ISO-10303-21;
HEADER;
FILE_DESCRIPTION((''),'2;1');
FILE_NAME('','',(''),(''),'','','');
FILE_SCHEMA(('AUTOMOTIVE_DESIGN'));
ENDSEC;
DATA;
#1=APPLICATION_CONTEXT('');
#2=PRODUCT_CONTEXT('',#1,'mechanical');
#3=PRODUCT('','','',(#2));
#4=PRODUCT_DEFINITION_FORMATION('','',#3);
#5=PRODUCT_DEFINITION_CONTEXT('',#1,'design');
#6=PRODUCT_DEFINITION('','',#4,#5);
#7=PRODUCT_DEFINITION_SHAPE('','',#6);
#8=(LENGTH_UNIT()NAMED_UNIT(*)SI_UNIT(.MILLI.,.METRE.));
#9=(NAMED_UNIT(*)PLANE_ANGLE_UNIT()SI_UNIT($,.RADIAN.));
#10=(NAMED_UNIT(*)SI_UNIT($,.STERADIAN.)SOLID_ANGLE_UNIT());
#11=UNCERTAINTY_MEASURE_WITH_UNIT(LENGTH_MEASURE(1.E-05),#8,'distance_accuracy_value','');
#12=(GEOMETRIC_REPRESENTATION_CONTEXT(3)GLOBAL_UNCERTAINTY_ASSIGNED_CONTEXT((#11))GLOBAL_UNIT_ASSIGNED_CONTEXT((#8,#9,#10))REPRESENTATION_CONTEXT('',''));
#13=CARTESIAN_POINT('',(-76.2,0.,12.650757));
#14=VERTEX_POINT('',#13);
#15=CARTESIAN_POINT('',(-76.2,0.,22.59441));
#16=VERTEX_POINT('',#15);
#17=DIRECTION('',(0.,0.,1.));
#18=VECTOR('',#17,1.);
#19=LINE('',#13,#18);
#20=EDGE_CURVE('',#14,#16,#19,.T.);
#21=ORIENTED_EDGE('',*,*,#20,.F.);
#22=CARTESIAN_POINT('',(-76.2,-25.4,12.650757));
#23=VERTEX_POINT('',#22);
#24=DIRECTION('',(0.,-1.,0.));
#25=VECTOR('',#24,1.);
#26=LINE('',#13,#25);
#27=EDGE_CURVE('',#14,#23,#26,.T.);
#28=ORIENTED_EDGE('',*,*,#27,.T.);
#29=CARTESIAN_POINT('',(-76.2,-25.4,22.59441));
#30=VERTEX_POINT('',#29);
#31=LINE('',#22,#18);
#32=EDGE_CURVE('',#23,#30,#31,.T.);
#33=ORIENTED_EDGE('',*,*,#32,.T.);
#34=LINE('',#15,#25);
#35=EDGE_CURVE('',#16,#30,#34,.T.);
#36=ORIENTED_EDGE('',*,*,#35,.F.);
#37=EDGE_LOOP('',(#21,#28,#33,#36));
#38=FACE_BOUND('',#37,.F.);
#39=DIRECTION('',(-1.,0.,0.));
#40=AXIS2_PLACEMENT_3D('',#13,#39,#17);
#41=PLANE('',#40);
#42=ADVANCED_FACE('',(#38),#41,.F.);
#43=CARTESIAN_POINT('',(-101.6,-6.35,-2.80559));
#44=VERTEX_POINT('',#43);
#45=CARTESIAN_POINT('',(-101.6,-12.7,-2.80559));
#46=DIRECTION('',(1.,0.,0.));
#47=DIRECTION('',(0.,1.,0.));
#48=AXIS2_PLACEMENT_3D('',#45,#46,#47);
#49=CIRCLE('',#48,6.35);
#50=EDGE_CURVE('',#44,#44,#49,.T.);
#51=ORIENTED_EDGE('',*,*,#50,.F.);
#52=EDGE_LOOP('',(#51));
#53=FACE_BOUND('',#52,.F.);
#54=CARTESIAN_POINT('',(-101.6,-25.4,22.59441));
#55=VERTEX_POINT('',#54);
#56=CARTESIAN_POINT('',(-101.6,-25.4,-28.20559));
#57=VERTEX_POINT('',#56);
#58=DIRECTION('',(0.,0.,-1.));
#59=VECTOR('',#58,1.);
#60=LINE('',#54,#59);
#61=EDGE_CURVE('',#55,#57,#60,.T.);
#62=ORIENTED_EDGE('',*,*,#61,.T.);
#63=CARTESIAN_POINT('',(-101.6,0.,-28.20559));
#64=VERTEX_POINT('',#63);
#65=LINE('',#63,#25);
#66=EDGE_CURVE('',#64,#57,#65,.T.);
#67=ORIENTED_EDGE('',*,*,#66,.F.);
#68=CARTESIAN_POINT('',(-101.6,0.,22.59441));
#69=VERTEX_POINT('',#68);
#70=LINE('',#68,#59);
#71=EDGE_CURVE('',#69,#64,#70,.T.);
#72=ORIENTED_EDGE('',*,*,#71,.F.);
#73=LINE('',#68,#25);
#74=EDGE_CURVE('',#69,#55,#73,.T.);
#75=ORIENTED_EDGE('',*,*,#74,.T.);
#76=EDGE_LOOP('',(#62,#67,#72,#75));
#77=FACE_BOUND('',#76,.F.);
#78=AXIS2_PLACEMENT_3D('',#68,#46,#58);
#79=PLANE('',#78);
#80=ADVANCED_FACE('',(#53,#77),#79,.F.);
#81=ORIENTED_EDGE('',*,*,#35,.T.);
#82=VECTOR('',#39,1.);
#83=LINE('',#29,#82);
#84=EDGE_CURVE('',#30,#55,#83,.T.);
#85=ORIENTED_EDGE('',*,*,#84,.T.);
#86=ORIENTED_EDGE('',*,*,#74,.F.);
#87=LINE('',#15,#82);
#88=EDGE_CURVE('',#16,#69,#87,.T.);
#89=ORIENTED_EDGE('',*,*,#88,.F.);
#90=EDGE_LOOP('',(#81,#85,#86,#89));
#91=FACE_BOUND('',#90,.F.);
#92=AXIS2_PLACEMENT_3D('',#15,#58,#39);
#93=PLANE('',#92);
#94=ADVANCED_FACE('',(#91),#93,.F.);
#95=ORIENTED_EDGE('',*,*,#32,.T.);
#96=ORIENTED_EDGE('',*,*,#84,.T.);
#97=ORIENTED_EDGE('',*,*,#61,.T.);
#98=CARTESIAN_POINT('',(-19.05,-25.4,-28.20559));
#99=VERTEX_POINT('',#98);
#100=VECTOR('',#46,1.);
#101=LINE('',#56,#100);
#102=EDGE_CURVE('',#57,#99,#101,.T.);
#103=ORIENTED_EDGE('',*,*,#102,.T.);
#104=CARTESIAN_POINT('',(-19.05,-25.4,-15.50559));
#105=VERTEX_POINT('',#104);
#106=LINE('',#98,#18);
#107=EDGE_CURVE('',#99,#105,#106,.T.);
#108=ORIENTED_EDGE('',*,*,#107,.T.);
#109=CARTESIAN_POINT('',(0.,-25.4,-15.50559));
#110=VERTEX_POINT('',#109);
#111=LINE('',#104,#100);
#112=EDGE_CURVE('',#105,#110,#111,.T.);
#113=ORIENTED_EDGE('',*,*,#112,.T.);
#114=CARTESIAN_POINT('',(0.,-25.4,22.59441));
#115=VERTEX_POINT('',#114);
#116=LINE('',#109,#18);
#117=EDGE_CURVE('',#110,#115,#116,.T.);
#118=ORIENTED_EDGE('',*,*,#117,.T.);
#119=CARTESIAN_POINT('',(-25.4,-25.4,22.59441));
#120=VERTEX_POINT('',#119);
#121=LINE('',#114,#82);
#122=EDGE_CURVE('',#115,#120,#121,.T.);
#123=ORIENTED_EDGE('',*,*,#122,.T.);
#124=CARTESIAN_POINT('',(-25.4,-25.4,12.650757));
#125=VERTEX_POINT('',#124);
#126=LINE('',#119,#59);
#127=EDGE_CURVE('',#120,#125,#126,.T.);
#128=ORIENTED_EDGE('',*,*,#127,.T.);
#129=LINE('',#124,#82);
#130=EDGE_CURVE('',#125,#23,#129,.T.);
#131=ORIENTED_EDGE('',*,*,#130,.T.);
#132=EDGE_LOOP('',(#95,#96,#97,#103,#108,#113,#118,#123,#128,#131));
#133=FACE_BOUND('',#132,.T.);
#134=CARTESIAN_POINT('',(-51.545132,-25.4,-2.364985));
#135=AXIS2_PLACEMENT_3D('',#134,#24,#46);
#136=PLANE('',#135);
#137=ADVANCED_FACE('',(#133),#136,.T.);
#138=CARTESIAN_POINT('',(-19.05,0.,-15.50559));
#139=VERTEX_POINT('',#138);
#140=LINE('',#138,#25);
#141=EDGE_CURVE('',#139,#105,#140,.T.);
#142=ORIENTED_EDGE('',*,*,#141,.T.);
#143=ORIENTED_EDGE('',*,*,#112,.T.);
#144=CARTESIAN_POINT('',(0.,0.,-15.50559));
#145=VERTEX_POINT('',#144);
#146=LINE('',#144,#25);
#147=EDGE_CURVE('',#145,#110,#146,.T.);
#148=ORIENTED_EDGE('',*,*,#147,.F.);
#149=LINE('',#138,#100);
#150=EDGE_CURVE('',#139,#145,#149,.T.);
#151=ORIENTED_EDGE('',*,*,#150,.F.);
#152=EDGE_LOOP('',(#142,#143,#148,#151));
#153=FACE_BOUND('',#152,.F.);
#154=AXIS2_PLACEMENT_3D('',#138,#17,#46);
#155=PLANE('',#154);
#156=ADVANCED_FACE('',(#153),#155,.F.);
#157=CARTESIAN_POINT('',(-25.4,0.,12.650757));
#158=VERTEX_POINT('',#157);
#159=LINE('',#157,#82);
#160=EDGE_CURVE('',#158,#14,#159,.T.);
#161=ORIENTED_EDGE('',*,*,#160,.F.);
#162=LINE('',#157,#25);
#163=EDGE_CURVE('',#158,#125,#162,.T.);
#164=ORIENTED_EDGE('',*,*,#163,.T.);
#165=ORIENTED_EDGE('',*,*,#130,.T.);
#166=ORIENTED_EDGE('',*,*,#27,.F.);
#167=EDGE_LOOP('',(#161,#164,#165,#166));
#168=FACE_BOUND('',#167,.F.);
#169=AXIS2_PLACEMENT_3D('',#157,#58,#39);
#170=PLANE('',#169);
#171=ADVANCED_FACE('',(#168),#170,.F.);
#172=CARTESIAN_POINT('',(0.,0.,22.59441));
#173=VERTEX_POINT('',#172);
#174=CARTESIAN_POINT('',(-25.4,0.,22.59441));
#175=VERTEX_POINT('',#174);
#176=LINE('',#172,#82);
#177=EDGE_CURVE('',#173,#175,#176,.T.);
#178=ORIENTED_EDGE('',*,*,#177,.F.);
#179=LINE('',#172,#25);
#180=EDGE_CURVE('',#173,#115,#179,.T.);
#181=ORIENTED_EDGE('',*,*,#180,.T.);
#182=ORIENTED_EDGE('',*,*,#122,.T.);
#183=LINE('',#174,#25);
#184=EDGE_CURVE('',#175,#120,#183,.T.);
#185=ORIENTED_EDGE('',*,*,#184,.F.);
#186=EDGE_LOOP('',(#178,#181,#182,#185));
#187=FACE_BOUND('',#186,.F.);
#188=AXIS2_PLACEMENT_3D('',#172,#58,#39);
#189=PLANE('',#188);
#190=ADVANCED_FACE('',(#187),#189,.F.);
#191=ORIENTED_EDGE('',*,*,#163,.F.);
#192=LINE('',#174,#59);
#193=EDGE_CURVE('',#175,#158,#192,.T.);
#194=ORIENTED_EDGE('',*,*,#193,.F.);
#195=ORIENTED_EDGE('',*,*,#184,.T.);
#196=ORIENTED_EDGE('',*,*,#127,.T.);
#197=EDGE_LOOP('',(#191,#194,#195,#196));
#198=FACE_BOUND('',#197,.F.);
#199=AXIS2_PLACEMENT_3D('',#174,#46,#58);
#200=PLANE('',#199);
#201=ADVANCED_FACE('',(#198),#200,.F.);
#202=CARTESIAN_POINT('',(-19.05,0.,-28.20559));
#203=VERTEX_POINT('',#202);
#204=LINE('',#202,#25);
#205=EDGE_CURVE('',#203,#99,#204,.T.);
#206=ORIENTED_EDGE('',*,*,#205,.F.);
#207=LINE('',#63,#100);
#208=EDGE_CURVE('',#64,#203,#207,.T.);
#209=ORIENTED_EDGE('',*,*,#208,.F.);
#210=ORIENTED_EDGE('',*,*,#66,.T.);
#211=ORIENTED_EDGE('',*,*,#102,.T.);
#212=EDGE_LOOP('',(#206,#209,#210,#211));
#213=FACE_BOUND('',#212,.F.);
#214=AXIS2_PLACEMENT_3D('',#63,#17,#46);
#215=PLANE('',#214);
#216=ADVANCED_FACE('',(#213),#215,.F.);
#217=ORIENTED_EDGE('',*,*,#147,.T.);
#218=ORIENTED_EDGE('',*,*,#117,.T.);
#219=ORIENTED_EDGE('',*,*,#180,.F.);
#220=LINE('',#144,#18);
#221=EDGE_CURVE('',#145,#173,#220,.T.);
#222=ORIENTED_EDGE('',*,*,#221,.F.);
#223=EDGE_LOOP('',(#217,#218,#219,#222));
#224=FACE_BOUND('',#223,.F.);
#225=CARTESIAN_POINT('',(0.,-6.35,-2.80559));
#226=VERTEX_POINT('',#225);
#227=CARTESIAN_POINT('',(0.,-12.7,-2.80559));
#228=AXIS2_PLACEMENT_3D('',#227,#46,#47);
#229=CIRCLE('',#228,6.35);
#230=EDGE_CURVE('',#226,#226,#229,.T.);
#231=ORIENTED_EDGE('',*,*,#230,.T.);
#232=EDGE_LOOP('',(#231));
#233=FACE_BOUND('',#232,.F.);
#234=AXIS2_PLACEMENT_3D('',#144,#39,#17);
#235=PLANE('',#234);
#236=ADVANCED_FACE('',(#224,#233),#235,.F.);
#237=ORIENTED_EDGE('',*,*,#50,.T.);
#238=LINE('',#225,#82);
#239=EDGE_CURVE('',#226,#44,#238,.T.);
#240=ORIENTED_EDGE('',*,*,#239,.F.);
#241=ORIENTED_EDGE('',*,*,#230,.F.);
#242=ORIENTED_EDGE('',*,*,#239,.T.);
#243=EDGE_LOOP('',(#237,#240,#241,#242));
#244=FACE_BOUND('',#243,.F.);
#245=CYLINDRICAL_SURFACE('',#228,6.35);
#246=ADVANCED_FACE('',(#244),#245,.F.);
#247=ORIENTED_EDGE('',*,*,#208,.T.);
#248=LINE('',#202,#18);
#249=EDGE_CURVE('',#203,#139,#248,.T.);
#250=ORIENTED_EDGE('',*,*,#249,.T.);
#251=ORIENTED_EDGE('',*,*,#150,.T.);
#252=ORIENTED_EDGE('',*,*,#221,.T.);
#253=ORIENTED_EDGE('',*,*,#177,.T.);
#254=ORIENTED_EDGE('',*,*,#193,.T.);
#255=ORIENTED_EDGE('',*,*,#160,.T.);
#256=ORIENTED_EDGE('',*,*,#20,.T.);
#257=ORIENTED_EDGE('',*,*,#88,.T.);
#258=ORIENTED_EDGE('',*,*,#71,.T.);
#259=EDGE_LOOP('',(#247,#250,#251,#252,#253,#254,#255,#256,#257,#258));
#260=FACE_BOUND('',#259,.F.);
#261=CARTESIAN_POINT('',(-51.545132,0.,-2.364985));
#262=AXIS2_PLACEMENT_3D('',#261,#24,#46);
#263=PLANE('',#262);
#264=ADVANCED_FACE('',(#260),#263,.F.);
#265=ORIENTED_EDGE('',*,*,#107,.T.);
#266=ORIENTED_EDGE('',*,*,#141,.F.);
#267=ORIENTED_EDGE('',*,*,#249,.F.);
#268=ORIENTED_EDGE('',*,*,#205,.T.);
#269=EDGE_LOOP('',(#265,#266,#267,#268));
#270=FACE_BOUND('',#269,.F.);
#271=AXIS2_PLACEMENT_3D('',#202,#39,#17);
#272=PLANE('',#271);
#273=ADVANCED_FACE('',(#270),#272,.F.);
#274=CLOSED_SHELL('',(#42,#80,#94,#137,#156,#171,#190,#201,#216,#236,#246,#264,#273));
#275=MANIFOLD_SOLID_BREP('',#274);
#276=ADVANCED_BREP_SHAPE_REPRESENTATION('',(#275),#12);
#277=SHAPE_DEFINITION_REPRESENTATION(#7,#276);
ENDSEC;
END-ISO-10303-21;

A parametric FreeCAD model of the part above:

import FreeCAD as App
import Part
import Sketcher
Q = App.Units.Quantity


def add_polygon(sketch, points):
    """Adds a closed chain of lines whose ends are joined by coincident constraints."""
    first, n = sketch.GeometryCount, len(points)
    for a, b in zip(points, points[1:] + points[:1]):
        sketch.addGeometry(Part.LineSegment(App.Vector(*a, 0), App.Vector(*b, 0)), False)
    for i in range(n):
        sketch.addConstraint(Sketcher.Constraint("Coincident", first + i, 2, first + (i + 1) % n, 1))

doc = App.newDocument("Part")
params = doc.addObject("Spreadsheet::Sheet", "Params")
for row, (alias, value) in enumerate([
    ("sketch1_width", "1 in"),
    ("sketch1_width2", "2 in"),
    ("sketch1_height", "0.5 in"),
    ("sketch1_width3", "3.25 in"),
    ("pad1_length", "1 in"),
    ("sketch2_diameter", "0.5 in"),
], start=1):
    params.set(f"A{row}", alias)
    params.set(f"B{row}", "=" + value)
    params.setAlias(f"B{row}", alias)

body = doc.addObject("PartDesign::Body", "Body")

# Sketch on XZ plane
sketch1 = body.newObject("Sketcher::SketchObject", "Sketch")
sketch1.AttachmentSupport = (doc.getObject("XZ_Plane"), [""])
sketch1.MapMode = "FlatFace"
add_polygon(sketch1, [(-76.2, 22.59441), (-101.6, 22.59441), (-101.6, -28.20559), (-19.05, -28.20559), (-19.05, -15.50559), (0, -15.50559), (0, 22.59441), (-25.4, 22.59441), (-25.4, 12.650757), (-76.2, 12.650757)])  # lines 0-9
sketch1.addConstraint(Sketcher.Constraint("Horizontal", 0))
sketch1.addConstraint(Sketcher.Constraint("Vertical", 1))
sketch1.addConstraint(Sketcher.Constraint("Horizontal", 2))
sketch1.addConstraint(Sketcher.Constraint("Vertical", 3))
sketch1.addConstraint(Sketcher.Constraint("Horizontal", 4))
sketch1.addConstraint(Sketcher.Constraint("Vertical", 5))
sketch1.addConstraint(Sketcher.Constraint("Horizontal", 6))
sketch1.addConstraint(Sketcher.Constraint("Vertical", 7))
sketch1.addConstraint(Sketcher.Constraint("Horizontal", 8))
sketch1.addConstraint(Sketcher.Constraint("Vertical", 9))
sketch1.addConstraint(Sketcher.Constraint("PointOnObject", 4, 2, -2))
sketch1.addConstraint(Sketcher.Constraint("Horizontal", 0, 2, 5, 2))
sketch1.addConstraint(Sketcher.Constraint("Equal", 0, 6))
sketch1.addConstraint(Sketcher.Constraint("Equal", 8, 1))
sketch1.addConstraint(Sketcher.Constraint("DistanceX", 0, 2, 0, 1, Q("1 in")))
sketch1.addConstraint(Sketcher.Constraint("DistanceX", 8, 2, 8, 1, Q("2 in")))
sketch1.addConstraint(Sketcher.Constraint("DistanceY", 3, 1, 3, 2, Q("0.5 in")))
sketch1.addConstraint(Sketcher.Constraint("DistanceX", 2, 1, 2, 2, Q("3.25 in")))
sketch1.addConstraint(Sketcher.Constraint("DistanceY", 7, 2, 7, 1, 9.943653))
sketch1.addConstraint(Sketcher.Constraint("DistanceY", -1, 1, 0, 2, 22.59441))
sketch1.setExpression("Constraints[24]", "Params.sketch1_width")
sketch1.setExpression("Constraints[25]", "Params.sketch1_width2")
sketch1.setExpression("Constraints[26]", "Params.sketch1_height")
sketch1.setExpression("Constraints[27]", "Params.sketch1_width3")
pad1 = body.newObject("PartDesign::Pad", "Pad")
pad1.Profile = sketch1
pad1.setExpression("Length", "Params.pad1_length")

# Sketch on YZ plane
sketch2 = body.newObject("Sketcher::SketchObject", "Sketch001")
sketch2.AttachmentSupport = (doc.getObject("YZ_Plane"), [""])
sketch2.MapMode = "FlatFace"
sketch2.addGeometry(Part.Circle(App.Vector(-12.7, -2.80559, 0), App.Vector(0, 0, 1), 6.35), False)
sketch2.addConstraint(Sketcher.Constraint("Diameter", 0, Q("0.5 in")))
sketch2.addConstraint(Sketcher.Constraint("DistanceX", 0, 3, -1, 1, Q("0.5 in")))
sketch2.addConstraint(Sketcher.Constraint("DistanceY", 0, 3, -1, 1, 2.80559))
sketch2.setExpression("Constraints[0]", "Params.sketch2_diameter")
pocket1 = body.newObject("PartDesign::Pocket", "Pocket")
pocket1.Profile = sketch2
pocket1.Type = "ThroughAll"

doc.recompute()
